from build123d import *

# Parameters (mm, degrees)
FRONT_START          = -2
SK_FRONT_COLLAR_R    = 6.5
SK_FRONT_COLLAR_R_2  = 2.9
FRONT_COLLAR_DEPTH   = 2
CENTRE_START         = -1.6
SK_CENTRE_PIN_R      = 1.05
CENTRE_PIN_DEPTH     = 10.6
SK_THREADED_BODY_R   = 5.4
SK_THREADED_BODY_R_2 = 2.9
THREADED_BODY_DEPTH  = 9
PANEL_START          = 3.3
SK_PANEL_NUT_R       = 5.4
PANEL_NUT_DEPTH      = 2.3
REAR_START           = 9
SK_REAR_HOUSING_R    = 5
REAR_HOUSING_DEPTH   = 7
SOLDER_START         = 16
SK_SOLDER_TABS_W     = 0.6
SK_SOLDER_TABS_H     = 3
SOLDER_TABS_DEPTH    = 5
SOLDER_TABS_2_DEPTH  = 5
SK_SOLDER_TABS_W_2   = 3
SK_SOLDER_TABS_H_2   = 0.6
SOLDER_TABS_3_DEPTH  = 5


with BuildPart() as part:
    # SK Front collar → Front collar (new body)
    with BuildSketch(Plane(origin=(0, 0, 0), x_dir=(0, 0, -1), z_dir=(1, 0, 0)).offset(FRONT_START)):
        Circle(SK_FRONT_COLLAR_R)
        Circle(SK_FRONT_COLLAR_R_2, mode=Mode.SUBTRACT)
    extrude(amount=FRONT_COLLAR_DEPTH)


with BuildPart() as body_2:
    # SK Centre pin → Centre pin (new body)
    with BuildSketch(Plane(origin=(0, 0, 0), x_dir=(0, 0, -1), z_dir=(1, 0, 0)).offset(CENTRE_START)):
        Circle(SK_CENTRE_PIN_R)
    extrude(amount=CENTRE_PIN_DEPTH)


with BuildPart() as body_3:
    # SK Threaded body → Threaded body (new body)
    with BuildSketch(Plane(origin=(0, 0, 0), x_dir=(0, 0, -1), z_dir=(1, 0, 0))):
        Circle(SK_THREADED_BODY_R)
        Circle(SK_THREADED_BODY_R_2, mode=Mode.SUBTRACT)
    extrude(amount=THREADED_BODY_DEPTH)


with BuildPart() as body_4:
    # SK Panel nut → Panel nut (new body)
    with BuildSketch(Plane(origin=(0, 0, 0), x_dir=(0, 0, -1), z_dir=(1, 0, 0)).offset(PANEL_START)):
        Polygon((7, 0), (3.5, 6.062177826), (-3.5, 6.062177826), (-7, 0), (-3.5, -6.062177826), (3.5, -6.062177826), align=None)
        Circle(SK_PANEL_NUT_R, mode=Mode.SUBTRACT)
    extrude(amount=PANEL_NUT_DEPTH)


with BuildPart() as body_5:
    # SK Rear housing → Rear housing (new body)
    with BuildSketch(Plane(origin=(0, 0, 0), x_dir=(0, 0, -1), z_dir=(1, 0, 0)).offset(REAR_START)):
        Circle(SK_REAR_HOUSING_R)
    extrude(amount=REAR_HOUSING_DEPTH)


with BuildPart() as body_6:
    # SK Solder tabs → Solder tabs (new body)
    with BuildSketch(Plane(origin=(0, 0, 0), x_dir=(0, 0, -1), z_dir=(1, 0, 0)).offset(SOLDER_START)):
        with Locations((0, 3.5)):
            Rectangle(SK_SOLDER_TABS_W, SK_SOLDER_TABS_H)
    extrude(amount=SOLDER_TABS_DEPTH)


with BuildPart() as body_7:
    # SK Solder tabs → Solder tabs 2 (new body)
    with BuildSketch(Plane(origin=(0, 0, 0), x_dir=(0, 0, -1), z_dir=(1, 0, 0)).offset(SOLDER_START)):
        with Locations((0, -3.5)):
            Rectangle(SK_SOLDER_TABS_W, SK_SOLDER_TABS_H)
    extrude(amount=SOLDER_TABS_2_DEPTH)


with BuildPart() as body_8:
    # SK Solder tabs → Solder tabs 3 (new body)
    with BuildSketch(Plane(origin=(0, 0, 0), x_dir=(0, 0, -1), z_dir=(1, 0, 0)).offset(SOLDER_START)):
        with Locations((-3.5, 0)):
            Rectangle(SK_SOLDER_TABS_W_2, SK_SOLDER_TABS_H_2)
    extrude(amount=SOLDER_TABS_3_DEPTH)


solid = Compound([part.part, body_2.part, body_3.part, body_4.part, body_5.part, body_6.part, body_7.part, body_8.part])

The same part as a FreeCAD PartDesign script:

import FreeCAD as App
import Part
import Sketcher

V = App.Vector
Q = App.Units.Quantity

doc = App.newDocument("Part")
params = doc.addObject("Spreadsheet::Sheet", "Params")
for row, (alias, value) in enumerate([
    ("sketch1_diameter", "13 mm"),
    ("sketch1_diameter2", "5.8 mm"),
    ("pad1_length", "2 mm"),
    ("sketch2_diameter", "2.1 mm"),
    ("pad2_length", "10.6 mm"),
    ("sketch3_diameter", "10.8 mm"),
    ("sketch3_diameter2", "5.8 mm"),
    ("pad3_length", "9 mm"),
    ("sketch4_diameter", "10.8 mm"),
    ("sketch4_height", "7 mm"),
    ("sketch4_length", "7 mm"),
    ("pad4_length", "2.3 mm"),
    ("sketch5_diameter", "10 mm"),
    ("pad5_length", "7 mm"),
    ("sketch6_width", "3 mm"),
    ("sketch6_height", "0.6 mm"),
    ("pad6_length", "5 mm"),
    ("sketch7_width", "3 mm"),
    ("sketch7_height", "0.6 mm"),
    ("pad7_length", "5 mm"),
    ("sketch8_height", "3 mm"),
    ("sketch8_width", "0.6 mm"),
    ("pad8_length", "5 mm"),
], start=1):
    params.set(f"A{row}", alias)
    params.set(f"B{row}", "=" + value)
    params.setAlias(f"B{row}", alias)

body = doc.addObject("PartDesign::Body", "Body")

# Sketch on YZ plane
sketch1 = body.newObject("Sketcher::SketchObject", "Sketch")
sketch1.AttachmentSupport = (doc.getObject("YZ_Plane"), [""])
sketch1.MapMode = "FlatFace"
sketch1.AttachmentOffset = App.Placement(V(0, 0, -2), App.Rotation())
sketch1.addGeometry(Part.Circle(V(0, 0, 0), V(0, 0, 1), 6.5), False)
sketch1.addGeometry(Part.Circle(V(0, 0, 0), V(0, 0, 1), 2.9), False)
sketch1.addConstraint(Sketcher.Constraint("Coincident", 0, 3, -1, 1))
sketch1.addConstraint(Sketcher.Constraint("Coincident", 1, 3, -1, 1))
sketch1.addConstraint(Sketcher.Constraint("Diameter", 0, 13.0))
sketch1.addConstraint(Sketcher.Constraint("Diameter", 1, 5.8))
sketch1.setExpression("Constraints[2]", "Params.sketch1_diameter")
sketch1.setExpression("Constraints[3]", "Params.sketch1_diameter2")
pad1 = body.newObject("PartDesign::Pad", "Pad")
pad1.Profile = sketch1
pad1.setExpression("Length", "Params.pad1_length")
body2 = doc.addObject("PartDesign::Body", "Body001")

# Sketch on YZ plane
sketch2 = body2.newObject("Sketcher::SketchObject", "Sketch001")
sketch2.AttachmentSupport = (doc.getObject("YZ_Plane001"), [""])
sketch2.MapMode = "FlatFace"
sketch2.AttachmentOffset = App.Placement(V(0, 0, -1.6), App.Rotation())
sketch2.addGeometry(Part.Circle(V(0, 0, 0), V(0, 0, 1), 1.05), False)
sketch2.addConstraint(Sketcher.Constraint("Coincident", 0, 3, -1, 1))
sketch2.addConstraint(Sketcher.Constraint("Diameter", 0, 2.1))
sketch2.setExpression("Constraints[1]", "Params.sketch2_diameter")
pad2 = body2.newObject("PartDesign::Pad", "Pad001")
pad2.Profile = sketch2
pad2.setExpression("Length", "Params.pad2_length")
body3 = doc.addObject("PartDesign::Body", "Body002")

# Sketch on YZ plane
sketch3 = body3.newObject("Sketcher::SketchObject", "Sketch002")
sketch3.AttachmentSupport = (doc.getObject("YZ_Plane002"), [""])
sketch3.MapMode = "FlatFace"
sketch3.addGeometry(Part.Circle(V(0, 0, 0), V(0, 0, 1), 5.4), False)
sketch3.addGeometry(Part.Circle(V(0, 0, 0), V(0, 0, 1), 2.9), False)
sketch3.addConstraint(Sketcher.Constraint("Coincident", 0, 3, -1, 1))
sketch3.addConstraint(Sketcher.Constraint("Coincident", 1, 3, -1, 1))
sketch3.addConstraint(Sketcher.Constraint("Diameter", 0, 10.8))
sketch3.addConstraint(Sketcher.Constraint("Diameter", 1, 5.8))
sketch3.setExpression("Constraints[2]", "Params.sketch3_diameter")
sketch3.setExpression("Constraints[3]", "Params.sketch3_diameter2")
pad3 = body3.newObject("PartDesign::Pad", "Pad002")
pad3.Profile = sketch3
pad3.setExpression("Length", "Params.pad3_length")
body4 = doc.addObject("PartDesign::Body", "Body003")

# Sketch on YZ plane
sketch4 = body4.newObject("Sketcher::SketchObject", "Sketch003")
sketch4.AttachmentSupport = (doc.getObject("YZ_Plane003"), [""])
sketch4.MapMode = "FlatFace"
sketch4.AttachmentOffset = App.Placement(V(0, 0, 3.3), App.Rotation())
sketch4.addGeometry(Part.LineSegment(V(0, -7, 0), V(6.062178, -3.5, 0)), False)
sketch4.addGeometry(Part.LineSegment(V(6.062178, -3.5, 0), V(6.062178, 3.5, 0)), False)
sketch4.addGeometry(Part.LineSegment(V(6.062178, 3.5, 0), V(0, 7, 0)), False)
sketch4.addGeometry(Part.LineSegment(V(0, 7, 0), V(-6.062178, 3.5, 0)), False)
sketch4.addGeometry(Part.LineSegment(V(-6.062178, 3.5, 0), V(-6.062178, -3.5, 0)), False)
sketch4.addGeometry(Part.LineSegment(V(-6.062178, -3.5, 0), V(0, -7, 0)), False)
sketch4.addGeometry(Part.Circle(V(0, 0, 0), V(0, 0, 1), 5.4), False)
sketch4.addConstraint(Sketcher.Constraint("Coincident", 0, 2, 1, 1))
sketch4.addConstraint(Sketcher.Constraint("Coincident", 1, 2, 2, 1))
sketch4.addConstraint(Sketcher.Constraint("Coincident", 2, 2, 3, 1))
sketch4.addConstraint(Sketcher.Constraint("Coincident", 3, 2, 4, 1))
sketch4.addConstraint(Sketcher.Constraint("Coincident", 4, 2, 5, 1))
sketch4.addConstraint(Sketcher.Constraint("Coincident", 5, 2, 0, 1))
sketch4.addConstraint(Sketcher.Constraint("Vertical", 1))
sketch4.addConstraint(Sketcher.Constraint("Vertical", 4))
sketch4.addConstraint(Sketcher.Constraint("Coincident", 6, 3, -1, 1))
sketch4.addConstraint(Sketcher.Constraint("Symmetric", 0, 2, 3, 2, -1, 1))
sketch4.addConstraint(Sketcher.Constraint("Symmetric", 2, 2, 5, 2, -1, 1))
sketch4.addConstraint(Sketcher.Constraint("PointOnObject", 2, 2, -2))
sketch4.addConstraint(Sketcher.Constraint("Parallel", 2, 5))
sketch4.addConstraint(Sketcher.Constraint("Horizontal", 1, 2, 3, 2))
sketch4.addConstraint(Sketcher.Constraint("Diameter", 6, 10.8))
sketch4.addConstraint(Sketcher.Constraint("DistanceY", 1, 1, 1, 2, 7.0))
sketch4.addConstraint(Sketcher.Constraint("Angle", 0, Q("30 deg")))
sketch4.addConstraint(Sketcher.Constraint("Distance", 0, 7.0))
sketch4.setExpression("Constraints[14]", "Params.sketch4_diameter")
sketch4.setExpression("Constraints[15]", "Params.sketch4_height")
sketch4.setExpression("Constraints[17]", "Params.sketch4_length")
pad4 = body4.newObject("PartDesign::Pad", "Pad003")
pad4.Profile = sketch4
pad4.setExpression("Length", "Params.pad4_length")
body5 = doc.addObject("PartDesign::Body", "Body004")

# Sketch on YZ plane
sketch5 = body5.newObject("Sketcher::SketchObject", "Sketch004")
sketch5.AttachmentSupport = (doc.getObject("YZ_Plane004"), [""])
sketch5.MapMode = "FlatFace"
sketch5.AttachmentOffset = App.Placement(V(0, 0, 9), App.Rotation())
sketch5.addGeometry(Part.Circle(V(0, 0, 0), V(0, 0, 1), 5), False)
sketch5.addConstraint(Sketcher.Constraint("Coincident", 0, 3, -1, 1))
sketch5.addConstraint(Sketcher.Constraint("Diameter", 0, 10.0))
sketch5.setExpression("Constraints[1]", "Params.sketch5_diameter")
pad5 = body5.newObject("PartDesign::Pad", "Pad004")
pad5.Profile = sketch5
pad5.setExpression("Length", "Params.pad5_length")
body6 = doc.addObject("PartDesign::Body", "Body005")

# Sketch on YZ plane
sketch6 = body6.newObject("Sketcher::SketchObject", "Sketch005")
sketch6.AttachmentSupport = (doc.getObject("YZ_Plane005"), [""])
sketch6.MapMode = "FlatFace"
sketch6.AttachmentOffset = App.Placement(V(0, 0, 16), App.Rotation())
sketch6.addGeometry(Part.LineSegment(V(5, 0.3, 0), V(2, 0.3, 0)), False)
sketch6.addGeometry(Part.LineSegment(V(2, 0.3, 0), V(2, -0.3, 0)), False)
sketch6.addGeometry(Part.LineSegment(V(2, -0.3, 0), V(5, -0.3, 0)), False)
sketch6.addGeometry(Part.LineSegment(V(5, -0.3, 0), V(5, 0.3, 0)), False)
sketch6.addConstraint(Sketcher.Constraint("Coincident", 0, 2, 1, 1))
sketch6.addConstraint(Sketcher.Constraint("Coincident", 1, 2, 2, 1))
sketch6.addConstraint(Sketcher.Constraint("Coincident", 2, 2, 3, 1))
sketch6.addConstraint(Sketcher.Constraint("Coincident", 3, 2, 0, 1))
sketch6.addConstraint(Sketcher.Constraint("Horizontal", 0))
sketch6.addConstraint(Sketcher.Constraint("Vertical", 1))
sketch6.addConstraint(Sketcher.Constraint("Horizontal", 2))
sketch6.addConstraint(Sketcher.Constraint("Vertical", 3))
sketch6.addConstraint(Sketcher.Constraint("DistanceX", 0, 2, 0, 1, 3.0))
sketch6.addConstraint(Sketcher.Constraint("DistanceY", 1, 2, 1, 1, 0.6))
sketch6.addConstraint(Sketcher.Constraint("DistanceX", -1, 1, 0, 2, 2.0))
sketch6.addConstraint(Sketcher.Constraint("DistanceY", -1, 1, 0, 2, 0.3))
sketch6.setExpression("Constraints[8]", "Params.sketch6_width")
sketch6.setExpression("Constraints[9]", "Params.sketch6_height")
pad6 = body6.newObject("PartDesign::Pad", "Pad005")
pad6.Profile = sketch6
pad6.setExpression("Length", "Params.pad6_length")
body7 = doc.addObject("PartDesign::Body", "Body006")

# Sketch on YZ plane
sketch7 = body7.newObject("Sketcher::SketchObject", "Sketch006")
sketch7.AttachmentSupport = (doc.getObject("YZ_Plane006"), [""])
sketch7.MapMode = "FlatFace"
sketch7.AttachmentOffset = App.Placement(V(0, 0, 16), App.Rotation())
sketch7.addGeometry(Part.LineSegment(V(-2, 0.3, 0), V(-5, 0.3, 0)), False)
sketch7.addGeometry(Part.LineSegment(V(-5, 0.3, 0), V(-5, -0.3, 0)), False)
sketch7.addGeometry(Part.LineSegment(V(-5, -0.3, 0), V(-2, -0.3, 0)), False)
sketch7.addGeometry(Part.LineSegment(V(-2, -0.3, 0), V(-2, 0.3, 0)), False)
sketch7.addConstraint(Sketcher.Constraint("Coincident", 0, 2, 1, 1))
sketch7.addConstraint(Sketcher.Constraint("Coincident", 1, 2, 2, 1))
sketch7.addConstraint(Sketcher.Constraint("Coincident", 2, 2, 3, 1))
sketch7.addConstraint(Sketcher.Constraint("Coincident", 3, 2, 0, 1))
sketch7.addConstraint(Sketcher.Constraint("Horizontal", 0))
sketch7.addConstraint(Sketcher.Constraint("Vertical", 1))
sketch7.addConstraint(Sketcher.Constraint("Horizontal", 2))
sketch7.addConstraint(Sketcher.Constraint("Vertical", 3))
sketch7.addConstraint(Sketcher.Constraint("DistanceX", 0, 2, 0, 1, 3.0))
sketch7.addConstraint(Sketcher.Constraint("DistanceY", 1, 2, 1, 1, 0.6))
sketch7.addConstraint(Sketcher.Constraint("DistanceX", 0, 2, -1, 1, 5.0))
sketch7.addConstraint(Sketcher.Constraint("DistanceY", -1, 1, 0, 2, 0.3))
sketch7.setExpression("Constraints[8]", "Params.sketch7_width")
sketch7.setExpression("Constraints[9]", "Params.sketch7_height")
pad7 = body7.newObject("PartDesign::Pad", "Pad006")
pad7.Profile = sketch7
pad7.setExpression("Length", "Params.pad7_length")
body8 = doc.addObject("PartDesign::Body", "Body007")

# Sketch on YZ plane
sketch8 = body8.newObject("Sketcher::SketchObject", "Sketch007")
sketch8.AttachmentSupport = (doc.getObject("YZ_Plane007"), [""])
sketch8.MapMode = "FlatFace"
sketch8.AttachmentOffset = App.Placement(V(0, 0, 16), App.Rotation())
sketch8.addGeometry(Part.LineSegment(V(0.3, 5, 0), V(-0.3, 5, 0)), False)
sketch8.addGeometry(Part.LineSegment(V(-0.3, 5, 0), V(-0.3, 2, 0)), False)
sketch8.addGeometry(Part.LineSegment(V(-0.3, 2, 0), V(0.3, 2, 0)), False)
sketch8.addGeometry(Part.LineSegment(V(0.3, 2, 0), V(0.3, 5, 0)), False)
sketch8.addConstraint(Sketcher.Constraint("Coincident", 0, 2, 1, 1))
sketch8.addConstraint(Sketcher.Constraint("Coincident", 1, 2, 2, 1))
sketch8.addConstraint(Sketcher.Constraint("Coincident", 2, 2, 3, 1))
sketch8.addConstraint(Sketcher.Constraint("Coincident", 3, 2, 0, 1))
sketch8.addConstraint(Sketcher.Constraint("Horizontal", 0))
sketch8.addConstraint(Sketcher.Constraint("Vertical", 1))
sketch8.addConstraint(Sketcher.Constraint("Horizontal", 2))
sketch8.addConstraint(Sketcher.Constraint("Vertical", 3))
sketch8.addConstraint(Sketcher.Constraint("DistanceY", 1, 2, 1, 1, 3.0))
sketch8.addConstraint(Sketcher.Constraint("DistanceX", 0, 2, 0, 1, 0.6))
sketch8.addConstraint(Sketcher.Constraint("DistanceY", -1, 1, 0, 2, 5.0))
sketch8.addConstraint(Sketcher.Constraint("DistanceX", 0, 2, -1, 1, 0.3))
sketch8.setExpression("Constraints[8]", "Params.sketch8_height")
sketch8.setExpression("Constraints[9]", "Params.sketch8_width")
pad8 = body8.newObject("PartDesign::Pad", "Pad007")
pad8.Profile = sketch8
pad8.setExpression("Length", "Params.pad8_length")

doc.recompute()
